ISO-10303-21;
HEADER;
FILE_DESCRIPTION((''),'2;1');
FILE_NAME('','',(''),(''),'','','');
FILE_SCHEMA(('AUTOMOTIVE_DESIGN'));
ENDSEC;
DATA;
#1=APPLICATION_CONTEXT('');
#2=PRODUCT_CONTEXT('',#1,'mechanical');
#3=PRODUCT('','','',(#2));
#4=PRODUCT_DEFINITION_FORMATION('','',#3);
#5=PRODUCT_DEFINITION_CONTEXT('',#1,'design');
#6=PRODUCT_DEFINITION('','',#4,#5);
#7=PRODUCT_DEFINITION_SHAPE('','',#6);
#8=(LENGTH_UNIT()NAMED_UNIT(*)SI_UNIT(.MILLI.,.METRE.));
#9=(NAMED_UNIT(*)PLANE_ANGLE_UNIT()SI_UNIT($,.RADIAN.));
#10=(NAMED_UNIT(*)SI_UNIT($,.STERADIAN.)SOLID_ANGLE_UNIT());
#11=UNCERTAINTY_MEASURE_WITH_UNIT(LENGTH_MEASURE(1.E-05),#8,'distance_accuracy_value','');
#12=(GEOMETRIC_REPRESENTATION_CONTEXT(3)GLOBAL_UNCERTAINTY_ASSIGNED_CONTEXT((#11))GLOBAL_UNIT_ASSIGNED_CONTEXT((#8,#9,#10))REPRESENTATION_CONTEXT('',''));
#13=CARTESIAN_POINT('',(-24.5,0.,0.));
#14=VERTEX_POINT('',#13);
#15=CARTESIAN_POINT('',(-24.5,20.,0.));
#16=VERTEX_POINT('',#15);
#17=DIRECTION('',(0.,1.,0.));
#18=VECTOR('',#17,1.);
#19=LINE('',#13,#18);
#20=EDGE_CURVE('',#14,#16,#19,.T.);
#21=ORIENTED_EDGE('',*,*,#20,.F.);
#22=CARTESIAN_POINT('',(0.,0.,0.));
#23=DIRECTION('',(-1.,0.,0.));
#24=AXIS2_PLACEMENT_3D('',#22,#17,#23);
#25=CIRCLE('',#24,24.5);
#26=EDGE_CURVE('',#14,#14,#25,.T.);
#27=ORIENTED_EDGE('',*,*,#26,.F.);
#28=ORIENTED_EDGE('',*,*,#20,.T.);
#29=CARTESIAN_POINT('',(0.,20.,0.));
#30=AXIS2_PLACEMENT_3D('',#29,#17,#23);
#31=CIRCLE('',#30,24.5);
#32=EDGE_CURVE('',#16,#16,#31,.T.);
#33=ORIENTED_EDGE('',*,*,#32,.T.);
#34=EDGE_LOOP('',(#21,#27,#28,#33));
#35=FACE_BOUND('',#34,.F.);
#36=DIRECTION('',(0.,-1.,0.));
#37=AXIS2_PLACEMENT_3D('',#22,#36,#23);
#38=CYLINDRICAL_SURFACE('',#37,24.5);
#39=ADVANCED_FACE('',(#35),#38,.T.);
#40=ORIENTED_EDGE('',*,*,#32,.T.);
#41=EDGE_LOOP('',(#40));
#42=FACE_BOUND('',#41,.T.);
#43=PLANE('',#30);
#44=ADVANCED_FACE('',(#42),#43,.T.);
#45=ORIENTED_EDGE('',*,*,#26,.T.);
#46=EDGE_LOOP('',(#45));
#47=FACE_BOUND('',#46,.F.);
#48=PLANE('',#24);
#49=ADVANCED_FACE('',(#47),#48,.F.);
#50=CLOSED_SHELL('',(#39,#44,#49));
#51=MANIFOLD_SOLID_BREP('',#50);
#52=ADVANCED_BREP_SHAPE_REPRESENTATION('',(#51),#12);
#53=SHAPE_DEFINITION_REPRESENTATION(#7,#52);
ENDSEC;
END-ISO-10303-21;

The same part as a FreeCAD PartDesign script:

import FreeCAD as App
import Part
import Sketcher
from FreeCAD import Vector

doc = App.newDocument("Part")
params = doc.addObject("Spreadsheet::Sheet", "Params")
for row, (alias, value) in enumerate([
    ("sketch1_diameter", "49 mm"),
    ("pad1_length", "20 mm"),
], start=1):
    params.set(f"A{row}", alias)
    params.set(f"B{row}", "=" + value)
    params.setAlias(f"B{row}", alias)

body = doc.addObject("PartDesign::Body", "Body")

# Sketch on XZ plane
sketch1 = body.newObject("Sketcher::SketchObject", "Sketch")
sketch1.AttachmentSupport = (doc.getObject("XZ_Plane"), [""])
sketch1.MapMode = "FlatFace"
sketch1.addGeometry(Part.Circle(Vector(0, 0, 0), Vector(0, 0, 1), 24.5), False)
sketch1.addConstraint(Sketcher.Constraint("Coincident", 0, 3, -1, 1))
sketch1.addConstraint(Sketcher.Constraint("Diameter", 0, 49.0))
sketch1.setExpression("Constraints[1]", "Params.sketch1_diameter")
pad1 = body.newObject("PartDesign::Pad", "Pad")
pad1.Profile = sketch1
pad1.setExpression("Length", "Params.pad1_length")
pad1.Reversed = True

doc.recompute()
